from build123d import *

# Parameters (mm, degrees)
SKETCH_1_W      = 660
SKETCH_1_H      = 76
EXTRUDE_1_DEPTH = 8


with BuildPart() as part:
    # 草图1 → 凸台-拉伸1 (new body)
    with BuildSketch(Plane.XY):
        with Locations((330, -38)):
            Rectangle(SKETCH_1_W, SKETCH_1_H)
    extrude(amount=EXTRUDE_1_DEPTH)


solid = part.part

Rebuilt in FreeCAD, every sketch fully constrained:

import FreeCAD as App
import Part
import Sketcher
from FreeCAD import Vector


def add_polygon(sketch, points):
    """Adds a closed chain of lines whose ends are joined by coincident constraints."""
    first, n = sketch.GeometryCount, len(points)
    for a, b in zip(points, points[1:] + points[:1]):
        sketch.addGeometry(Part.LineSegment(App.Vector(*a, 0), App.Vector(*b, 0)), False)
    for i in range(n):
        sketch.addConstraint(Sketcher.Constraint("Coincident", first + i, 2, first + (i + 1) % n, 1))

doc = App.newDocument("Part")
body = doc.addObject("PartDesign::Body", "Body")

# Sketch on XY plane
sketch1 = body.newObject("Sketcher::SketchObject", "Sketch")
sketch1.AttachmentSupport = (doc.getObject("XY_Plane"), [""])
sketch1.MapMode = "FlatFace"
add_polygon(sketch1, [(0, 0), (0, -76), (660, -76), (660, 0)])  # lines 0-3
sketch1.addConstraint([
    Sketcher.Constraint("Vertical", 0),
    Sketcher.Constraint("Horizontal", 1),
    Sketcher.Constraint("Vertical", 2),
    Sketcher.Constraint("Horizontal", 3),
    Sketcher.Constraint("Coincident", 3, 2, -1, 1),
    Sketcher.Constraint("DistanceX", 1, 1, 1, 2, 660.0),
    Sketcher.Constraint("DistanceY", 0, 2, 0, 1, 76.0),
])
pad1 = body.newObject("PartDesign::Pad", "Pad")
pad1.Profile = sketch1
pad1.Length = 8

doc.recompute()
